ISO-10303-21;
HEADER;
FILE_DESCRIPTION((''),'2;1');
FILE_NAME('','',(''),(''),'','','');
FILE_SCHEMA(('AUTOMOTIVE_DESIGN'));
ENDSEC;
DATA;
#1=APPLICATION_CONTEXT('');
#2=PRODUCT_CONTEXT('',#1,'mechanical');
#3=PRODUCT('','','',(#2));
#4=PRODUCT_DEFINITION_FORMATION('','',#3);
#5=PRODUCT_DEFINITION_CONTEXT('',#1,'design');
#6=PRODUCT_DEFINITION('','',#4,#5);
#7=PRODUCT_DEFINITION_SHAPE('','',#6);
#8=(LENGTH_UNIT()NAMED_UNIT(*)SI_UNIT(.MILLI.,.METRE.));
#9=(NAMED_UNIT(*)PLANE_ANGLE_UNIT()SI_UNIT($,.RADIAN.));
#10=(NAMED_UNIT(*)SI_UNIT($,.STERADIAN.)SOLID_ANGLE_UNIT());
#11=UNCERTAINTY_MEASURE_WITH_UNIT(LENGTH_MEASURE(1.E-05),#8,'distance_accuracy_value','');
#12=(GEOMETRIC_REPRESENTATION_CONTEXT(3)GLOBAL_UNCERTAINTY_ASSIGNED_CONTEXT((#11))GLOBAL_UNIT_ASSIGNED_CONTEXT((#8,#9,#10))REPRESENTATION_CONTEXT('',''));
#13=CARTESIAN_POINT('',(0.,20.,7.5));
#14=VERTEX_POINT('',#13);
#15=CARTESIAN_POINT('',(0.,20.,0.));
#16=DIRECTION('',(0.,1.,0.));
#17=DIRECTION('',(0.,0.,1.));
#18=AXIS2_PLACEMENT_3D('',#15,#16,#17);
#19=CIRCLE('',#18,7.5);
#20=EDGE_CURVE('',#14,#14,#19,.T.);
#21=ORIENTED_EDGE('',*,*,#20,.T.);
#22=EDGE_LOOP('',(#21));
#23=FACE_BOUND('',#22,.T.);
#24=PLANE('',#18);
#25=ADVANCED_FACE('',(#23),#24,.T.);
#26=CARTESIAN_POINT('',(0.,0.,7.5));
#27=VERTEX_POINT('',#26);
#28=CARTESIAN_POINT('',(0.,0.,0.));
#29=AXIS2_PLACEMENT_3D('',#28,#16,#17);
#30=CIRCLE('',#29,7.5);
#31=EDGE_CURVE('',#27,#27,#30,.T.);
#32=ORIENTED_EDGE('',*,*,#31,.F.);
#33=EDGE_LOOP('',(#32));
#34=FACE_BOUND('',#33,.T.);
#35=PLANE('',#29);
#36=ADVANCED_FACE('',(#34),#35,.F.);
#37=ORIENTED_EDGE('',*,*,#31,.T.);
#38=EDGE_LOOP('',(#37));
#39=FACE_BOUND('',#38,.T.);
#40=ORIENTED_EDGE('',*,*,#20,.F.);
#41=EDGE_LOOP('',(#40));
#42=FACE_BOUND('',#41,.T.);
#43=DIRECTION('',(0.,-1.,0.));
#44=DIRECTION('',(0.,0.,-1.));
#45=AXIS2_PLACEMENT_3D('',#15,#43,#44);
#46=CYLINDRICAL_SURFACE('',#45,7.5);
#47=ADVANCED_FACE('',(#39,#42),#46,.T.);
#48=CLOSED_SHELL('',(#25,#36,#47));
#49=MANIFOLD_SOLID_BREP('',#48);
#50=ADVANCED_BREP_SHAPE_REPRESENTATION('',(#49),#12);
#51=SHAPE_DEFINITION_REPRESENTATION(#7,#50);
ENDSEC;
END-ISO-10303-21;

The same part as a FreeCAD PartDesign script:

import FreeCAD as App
import Part
import Sketcher

V = App.Vector

doc = App.newDocument("Part")
body = doc.addObject("PartDesign::Body", "Body")

# Sketch on XZ plane
sketch1 = doc.addObject("Sketcher::SketchObject", "Sketch")
body.addObject(sketch1)
sketch1.AttachmentSupport = (doc.XZ_Plane, [""])
sketch1.MapMode = "FlatFace"
sketch1.addGeometry(Part.Circle(V(0, 0, 0), V(0, 0, 1), 8), False)
sketch1.addConstraint(Sketcher.Constraint("Coincident", 0, 3, -1, 1))
sketch1.addConstraint(Sketcher.Constraint("Diameter", 0, 15.0))
pad1 = doc.addObject("PartDesign::Pad", "Pad")
body.addObject(pad1)
pad1.Profile = sketch1
pad1.Length = 20
pad1.Reversed = True

doc.recompute()
